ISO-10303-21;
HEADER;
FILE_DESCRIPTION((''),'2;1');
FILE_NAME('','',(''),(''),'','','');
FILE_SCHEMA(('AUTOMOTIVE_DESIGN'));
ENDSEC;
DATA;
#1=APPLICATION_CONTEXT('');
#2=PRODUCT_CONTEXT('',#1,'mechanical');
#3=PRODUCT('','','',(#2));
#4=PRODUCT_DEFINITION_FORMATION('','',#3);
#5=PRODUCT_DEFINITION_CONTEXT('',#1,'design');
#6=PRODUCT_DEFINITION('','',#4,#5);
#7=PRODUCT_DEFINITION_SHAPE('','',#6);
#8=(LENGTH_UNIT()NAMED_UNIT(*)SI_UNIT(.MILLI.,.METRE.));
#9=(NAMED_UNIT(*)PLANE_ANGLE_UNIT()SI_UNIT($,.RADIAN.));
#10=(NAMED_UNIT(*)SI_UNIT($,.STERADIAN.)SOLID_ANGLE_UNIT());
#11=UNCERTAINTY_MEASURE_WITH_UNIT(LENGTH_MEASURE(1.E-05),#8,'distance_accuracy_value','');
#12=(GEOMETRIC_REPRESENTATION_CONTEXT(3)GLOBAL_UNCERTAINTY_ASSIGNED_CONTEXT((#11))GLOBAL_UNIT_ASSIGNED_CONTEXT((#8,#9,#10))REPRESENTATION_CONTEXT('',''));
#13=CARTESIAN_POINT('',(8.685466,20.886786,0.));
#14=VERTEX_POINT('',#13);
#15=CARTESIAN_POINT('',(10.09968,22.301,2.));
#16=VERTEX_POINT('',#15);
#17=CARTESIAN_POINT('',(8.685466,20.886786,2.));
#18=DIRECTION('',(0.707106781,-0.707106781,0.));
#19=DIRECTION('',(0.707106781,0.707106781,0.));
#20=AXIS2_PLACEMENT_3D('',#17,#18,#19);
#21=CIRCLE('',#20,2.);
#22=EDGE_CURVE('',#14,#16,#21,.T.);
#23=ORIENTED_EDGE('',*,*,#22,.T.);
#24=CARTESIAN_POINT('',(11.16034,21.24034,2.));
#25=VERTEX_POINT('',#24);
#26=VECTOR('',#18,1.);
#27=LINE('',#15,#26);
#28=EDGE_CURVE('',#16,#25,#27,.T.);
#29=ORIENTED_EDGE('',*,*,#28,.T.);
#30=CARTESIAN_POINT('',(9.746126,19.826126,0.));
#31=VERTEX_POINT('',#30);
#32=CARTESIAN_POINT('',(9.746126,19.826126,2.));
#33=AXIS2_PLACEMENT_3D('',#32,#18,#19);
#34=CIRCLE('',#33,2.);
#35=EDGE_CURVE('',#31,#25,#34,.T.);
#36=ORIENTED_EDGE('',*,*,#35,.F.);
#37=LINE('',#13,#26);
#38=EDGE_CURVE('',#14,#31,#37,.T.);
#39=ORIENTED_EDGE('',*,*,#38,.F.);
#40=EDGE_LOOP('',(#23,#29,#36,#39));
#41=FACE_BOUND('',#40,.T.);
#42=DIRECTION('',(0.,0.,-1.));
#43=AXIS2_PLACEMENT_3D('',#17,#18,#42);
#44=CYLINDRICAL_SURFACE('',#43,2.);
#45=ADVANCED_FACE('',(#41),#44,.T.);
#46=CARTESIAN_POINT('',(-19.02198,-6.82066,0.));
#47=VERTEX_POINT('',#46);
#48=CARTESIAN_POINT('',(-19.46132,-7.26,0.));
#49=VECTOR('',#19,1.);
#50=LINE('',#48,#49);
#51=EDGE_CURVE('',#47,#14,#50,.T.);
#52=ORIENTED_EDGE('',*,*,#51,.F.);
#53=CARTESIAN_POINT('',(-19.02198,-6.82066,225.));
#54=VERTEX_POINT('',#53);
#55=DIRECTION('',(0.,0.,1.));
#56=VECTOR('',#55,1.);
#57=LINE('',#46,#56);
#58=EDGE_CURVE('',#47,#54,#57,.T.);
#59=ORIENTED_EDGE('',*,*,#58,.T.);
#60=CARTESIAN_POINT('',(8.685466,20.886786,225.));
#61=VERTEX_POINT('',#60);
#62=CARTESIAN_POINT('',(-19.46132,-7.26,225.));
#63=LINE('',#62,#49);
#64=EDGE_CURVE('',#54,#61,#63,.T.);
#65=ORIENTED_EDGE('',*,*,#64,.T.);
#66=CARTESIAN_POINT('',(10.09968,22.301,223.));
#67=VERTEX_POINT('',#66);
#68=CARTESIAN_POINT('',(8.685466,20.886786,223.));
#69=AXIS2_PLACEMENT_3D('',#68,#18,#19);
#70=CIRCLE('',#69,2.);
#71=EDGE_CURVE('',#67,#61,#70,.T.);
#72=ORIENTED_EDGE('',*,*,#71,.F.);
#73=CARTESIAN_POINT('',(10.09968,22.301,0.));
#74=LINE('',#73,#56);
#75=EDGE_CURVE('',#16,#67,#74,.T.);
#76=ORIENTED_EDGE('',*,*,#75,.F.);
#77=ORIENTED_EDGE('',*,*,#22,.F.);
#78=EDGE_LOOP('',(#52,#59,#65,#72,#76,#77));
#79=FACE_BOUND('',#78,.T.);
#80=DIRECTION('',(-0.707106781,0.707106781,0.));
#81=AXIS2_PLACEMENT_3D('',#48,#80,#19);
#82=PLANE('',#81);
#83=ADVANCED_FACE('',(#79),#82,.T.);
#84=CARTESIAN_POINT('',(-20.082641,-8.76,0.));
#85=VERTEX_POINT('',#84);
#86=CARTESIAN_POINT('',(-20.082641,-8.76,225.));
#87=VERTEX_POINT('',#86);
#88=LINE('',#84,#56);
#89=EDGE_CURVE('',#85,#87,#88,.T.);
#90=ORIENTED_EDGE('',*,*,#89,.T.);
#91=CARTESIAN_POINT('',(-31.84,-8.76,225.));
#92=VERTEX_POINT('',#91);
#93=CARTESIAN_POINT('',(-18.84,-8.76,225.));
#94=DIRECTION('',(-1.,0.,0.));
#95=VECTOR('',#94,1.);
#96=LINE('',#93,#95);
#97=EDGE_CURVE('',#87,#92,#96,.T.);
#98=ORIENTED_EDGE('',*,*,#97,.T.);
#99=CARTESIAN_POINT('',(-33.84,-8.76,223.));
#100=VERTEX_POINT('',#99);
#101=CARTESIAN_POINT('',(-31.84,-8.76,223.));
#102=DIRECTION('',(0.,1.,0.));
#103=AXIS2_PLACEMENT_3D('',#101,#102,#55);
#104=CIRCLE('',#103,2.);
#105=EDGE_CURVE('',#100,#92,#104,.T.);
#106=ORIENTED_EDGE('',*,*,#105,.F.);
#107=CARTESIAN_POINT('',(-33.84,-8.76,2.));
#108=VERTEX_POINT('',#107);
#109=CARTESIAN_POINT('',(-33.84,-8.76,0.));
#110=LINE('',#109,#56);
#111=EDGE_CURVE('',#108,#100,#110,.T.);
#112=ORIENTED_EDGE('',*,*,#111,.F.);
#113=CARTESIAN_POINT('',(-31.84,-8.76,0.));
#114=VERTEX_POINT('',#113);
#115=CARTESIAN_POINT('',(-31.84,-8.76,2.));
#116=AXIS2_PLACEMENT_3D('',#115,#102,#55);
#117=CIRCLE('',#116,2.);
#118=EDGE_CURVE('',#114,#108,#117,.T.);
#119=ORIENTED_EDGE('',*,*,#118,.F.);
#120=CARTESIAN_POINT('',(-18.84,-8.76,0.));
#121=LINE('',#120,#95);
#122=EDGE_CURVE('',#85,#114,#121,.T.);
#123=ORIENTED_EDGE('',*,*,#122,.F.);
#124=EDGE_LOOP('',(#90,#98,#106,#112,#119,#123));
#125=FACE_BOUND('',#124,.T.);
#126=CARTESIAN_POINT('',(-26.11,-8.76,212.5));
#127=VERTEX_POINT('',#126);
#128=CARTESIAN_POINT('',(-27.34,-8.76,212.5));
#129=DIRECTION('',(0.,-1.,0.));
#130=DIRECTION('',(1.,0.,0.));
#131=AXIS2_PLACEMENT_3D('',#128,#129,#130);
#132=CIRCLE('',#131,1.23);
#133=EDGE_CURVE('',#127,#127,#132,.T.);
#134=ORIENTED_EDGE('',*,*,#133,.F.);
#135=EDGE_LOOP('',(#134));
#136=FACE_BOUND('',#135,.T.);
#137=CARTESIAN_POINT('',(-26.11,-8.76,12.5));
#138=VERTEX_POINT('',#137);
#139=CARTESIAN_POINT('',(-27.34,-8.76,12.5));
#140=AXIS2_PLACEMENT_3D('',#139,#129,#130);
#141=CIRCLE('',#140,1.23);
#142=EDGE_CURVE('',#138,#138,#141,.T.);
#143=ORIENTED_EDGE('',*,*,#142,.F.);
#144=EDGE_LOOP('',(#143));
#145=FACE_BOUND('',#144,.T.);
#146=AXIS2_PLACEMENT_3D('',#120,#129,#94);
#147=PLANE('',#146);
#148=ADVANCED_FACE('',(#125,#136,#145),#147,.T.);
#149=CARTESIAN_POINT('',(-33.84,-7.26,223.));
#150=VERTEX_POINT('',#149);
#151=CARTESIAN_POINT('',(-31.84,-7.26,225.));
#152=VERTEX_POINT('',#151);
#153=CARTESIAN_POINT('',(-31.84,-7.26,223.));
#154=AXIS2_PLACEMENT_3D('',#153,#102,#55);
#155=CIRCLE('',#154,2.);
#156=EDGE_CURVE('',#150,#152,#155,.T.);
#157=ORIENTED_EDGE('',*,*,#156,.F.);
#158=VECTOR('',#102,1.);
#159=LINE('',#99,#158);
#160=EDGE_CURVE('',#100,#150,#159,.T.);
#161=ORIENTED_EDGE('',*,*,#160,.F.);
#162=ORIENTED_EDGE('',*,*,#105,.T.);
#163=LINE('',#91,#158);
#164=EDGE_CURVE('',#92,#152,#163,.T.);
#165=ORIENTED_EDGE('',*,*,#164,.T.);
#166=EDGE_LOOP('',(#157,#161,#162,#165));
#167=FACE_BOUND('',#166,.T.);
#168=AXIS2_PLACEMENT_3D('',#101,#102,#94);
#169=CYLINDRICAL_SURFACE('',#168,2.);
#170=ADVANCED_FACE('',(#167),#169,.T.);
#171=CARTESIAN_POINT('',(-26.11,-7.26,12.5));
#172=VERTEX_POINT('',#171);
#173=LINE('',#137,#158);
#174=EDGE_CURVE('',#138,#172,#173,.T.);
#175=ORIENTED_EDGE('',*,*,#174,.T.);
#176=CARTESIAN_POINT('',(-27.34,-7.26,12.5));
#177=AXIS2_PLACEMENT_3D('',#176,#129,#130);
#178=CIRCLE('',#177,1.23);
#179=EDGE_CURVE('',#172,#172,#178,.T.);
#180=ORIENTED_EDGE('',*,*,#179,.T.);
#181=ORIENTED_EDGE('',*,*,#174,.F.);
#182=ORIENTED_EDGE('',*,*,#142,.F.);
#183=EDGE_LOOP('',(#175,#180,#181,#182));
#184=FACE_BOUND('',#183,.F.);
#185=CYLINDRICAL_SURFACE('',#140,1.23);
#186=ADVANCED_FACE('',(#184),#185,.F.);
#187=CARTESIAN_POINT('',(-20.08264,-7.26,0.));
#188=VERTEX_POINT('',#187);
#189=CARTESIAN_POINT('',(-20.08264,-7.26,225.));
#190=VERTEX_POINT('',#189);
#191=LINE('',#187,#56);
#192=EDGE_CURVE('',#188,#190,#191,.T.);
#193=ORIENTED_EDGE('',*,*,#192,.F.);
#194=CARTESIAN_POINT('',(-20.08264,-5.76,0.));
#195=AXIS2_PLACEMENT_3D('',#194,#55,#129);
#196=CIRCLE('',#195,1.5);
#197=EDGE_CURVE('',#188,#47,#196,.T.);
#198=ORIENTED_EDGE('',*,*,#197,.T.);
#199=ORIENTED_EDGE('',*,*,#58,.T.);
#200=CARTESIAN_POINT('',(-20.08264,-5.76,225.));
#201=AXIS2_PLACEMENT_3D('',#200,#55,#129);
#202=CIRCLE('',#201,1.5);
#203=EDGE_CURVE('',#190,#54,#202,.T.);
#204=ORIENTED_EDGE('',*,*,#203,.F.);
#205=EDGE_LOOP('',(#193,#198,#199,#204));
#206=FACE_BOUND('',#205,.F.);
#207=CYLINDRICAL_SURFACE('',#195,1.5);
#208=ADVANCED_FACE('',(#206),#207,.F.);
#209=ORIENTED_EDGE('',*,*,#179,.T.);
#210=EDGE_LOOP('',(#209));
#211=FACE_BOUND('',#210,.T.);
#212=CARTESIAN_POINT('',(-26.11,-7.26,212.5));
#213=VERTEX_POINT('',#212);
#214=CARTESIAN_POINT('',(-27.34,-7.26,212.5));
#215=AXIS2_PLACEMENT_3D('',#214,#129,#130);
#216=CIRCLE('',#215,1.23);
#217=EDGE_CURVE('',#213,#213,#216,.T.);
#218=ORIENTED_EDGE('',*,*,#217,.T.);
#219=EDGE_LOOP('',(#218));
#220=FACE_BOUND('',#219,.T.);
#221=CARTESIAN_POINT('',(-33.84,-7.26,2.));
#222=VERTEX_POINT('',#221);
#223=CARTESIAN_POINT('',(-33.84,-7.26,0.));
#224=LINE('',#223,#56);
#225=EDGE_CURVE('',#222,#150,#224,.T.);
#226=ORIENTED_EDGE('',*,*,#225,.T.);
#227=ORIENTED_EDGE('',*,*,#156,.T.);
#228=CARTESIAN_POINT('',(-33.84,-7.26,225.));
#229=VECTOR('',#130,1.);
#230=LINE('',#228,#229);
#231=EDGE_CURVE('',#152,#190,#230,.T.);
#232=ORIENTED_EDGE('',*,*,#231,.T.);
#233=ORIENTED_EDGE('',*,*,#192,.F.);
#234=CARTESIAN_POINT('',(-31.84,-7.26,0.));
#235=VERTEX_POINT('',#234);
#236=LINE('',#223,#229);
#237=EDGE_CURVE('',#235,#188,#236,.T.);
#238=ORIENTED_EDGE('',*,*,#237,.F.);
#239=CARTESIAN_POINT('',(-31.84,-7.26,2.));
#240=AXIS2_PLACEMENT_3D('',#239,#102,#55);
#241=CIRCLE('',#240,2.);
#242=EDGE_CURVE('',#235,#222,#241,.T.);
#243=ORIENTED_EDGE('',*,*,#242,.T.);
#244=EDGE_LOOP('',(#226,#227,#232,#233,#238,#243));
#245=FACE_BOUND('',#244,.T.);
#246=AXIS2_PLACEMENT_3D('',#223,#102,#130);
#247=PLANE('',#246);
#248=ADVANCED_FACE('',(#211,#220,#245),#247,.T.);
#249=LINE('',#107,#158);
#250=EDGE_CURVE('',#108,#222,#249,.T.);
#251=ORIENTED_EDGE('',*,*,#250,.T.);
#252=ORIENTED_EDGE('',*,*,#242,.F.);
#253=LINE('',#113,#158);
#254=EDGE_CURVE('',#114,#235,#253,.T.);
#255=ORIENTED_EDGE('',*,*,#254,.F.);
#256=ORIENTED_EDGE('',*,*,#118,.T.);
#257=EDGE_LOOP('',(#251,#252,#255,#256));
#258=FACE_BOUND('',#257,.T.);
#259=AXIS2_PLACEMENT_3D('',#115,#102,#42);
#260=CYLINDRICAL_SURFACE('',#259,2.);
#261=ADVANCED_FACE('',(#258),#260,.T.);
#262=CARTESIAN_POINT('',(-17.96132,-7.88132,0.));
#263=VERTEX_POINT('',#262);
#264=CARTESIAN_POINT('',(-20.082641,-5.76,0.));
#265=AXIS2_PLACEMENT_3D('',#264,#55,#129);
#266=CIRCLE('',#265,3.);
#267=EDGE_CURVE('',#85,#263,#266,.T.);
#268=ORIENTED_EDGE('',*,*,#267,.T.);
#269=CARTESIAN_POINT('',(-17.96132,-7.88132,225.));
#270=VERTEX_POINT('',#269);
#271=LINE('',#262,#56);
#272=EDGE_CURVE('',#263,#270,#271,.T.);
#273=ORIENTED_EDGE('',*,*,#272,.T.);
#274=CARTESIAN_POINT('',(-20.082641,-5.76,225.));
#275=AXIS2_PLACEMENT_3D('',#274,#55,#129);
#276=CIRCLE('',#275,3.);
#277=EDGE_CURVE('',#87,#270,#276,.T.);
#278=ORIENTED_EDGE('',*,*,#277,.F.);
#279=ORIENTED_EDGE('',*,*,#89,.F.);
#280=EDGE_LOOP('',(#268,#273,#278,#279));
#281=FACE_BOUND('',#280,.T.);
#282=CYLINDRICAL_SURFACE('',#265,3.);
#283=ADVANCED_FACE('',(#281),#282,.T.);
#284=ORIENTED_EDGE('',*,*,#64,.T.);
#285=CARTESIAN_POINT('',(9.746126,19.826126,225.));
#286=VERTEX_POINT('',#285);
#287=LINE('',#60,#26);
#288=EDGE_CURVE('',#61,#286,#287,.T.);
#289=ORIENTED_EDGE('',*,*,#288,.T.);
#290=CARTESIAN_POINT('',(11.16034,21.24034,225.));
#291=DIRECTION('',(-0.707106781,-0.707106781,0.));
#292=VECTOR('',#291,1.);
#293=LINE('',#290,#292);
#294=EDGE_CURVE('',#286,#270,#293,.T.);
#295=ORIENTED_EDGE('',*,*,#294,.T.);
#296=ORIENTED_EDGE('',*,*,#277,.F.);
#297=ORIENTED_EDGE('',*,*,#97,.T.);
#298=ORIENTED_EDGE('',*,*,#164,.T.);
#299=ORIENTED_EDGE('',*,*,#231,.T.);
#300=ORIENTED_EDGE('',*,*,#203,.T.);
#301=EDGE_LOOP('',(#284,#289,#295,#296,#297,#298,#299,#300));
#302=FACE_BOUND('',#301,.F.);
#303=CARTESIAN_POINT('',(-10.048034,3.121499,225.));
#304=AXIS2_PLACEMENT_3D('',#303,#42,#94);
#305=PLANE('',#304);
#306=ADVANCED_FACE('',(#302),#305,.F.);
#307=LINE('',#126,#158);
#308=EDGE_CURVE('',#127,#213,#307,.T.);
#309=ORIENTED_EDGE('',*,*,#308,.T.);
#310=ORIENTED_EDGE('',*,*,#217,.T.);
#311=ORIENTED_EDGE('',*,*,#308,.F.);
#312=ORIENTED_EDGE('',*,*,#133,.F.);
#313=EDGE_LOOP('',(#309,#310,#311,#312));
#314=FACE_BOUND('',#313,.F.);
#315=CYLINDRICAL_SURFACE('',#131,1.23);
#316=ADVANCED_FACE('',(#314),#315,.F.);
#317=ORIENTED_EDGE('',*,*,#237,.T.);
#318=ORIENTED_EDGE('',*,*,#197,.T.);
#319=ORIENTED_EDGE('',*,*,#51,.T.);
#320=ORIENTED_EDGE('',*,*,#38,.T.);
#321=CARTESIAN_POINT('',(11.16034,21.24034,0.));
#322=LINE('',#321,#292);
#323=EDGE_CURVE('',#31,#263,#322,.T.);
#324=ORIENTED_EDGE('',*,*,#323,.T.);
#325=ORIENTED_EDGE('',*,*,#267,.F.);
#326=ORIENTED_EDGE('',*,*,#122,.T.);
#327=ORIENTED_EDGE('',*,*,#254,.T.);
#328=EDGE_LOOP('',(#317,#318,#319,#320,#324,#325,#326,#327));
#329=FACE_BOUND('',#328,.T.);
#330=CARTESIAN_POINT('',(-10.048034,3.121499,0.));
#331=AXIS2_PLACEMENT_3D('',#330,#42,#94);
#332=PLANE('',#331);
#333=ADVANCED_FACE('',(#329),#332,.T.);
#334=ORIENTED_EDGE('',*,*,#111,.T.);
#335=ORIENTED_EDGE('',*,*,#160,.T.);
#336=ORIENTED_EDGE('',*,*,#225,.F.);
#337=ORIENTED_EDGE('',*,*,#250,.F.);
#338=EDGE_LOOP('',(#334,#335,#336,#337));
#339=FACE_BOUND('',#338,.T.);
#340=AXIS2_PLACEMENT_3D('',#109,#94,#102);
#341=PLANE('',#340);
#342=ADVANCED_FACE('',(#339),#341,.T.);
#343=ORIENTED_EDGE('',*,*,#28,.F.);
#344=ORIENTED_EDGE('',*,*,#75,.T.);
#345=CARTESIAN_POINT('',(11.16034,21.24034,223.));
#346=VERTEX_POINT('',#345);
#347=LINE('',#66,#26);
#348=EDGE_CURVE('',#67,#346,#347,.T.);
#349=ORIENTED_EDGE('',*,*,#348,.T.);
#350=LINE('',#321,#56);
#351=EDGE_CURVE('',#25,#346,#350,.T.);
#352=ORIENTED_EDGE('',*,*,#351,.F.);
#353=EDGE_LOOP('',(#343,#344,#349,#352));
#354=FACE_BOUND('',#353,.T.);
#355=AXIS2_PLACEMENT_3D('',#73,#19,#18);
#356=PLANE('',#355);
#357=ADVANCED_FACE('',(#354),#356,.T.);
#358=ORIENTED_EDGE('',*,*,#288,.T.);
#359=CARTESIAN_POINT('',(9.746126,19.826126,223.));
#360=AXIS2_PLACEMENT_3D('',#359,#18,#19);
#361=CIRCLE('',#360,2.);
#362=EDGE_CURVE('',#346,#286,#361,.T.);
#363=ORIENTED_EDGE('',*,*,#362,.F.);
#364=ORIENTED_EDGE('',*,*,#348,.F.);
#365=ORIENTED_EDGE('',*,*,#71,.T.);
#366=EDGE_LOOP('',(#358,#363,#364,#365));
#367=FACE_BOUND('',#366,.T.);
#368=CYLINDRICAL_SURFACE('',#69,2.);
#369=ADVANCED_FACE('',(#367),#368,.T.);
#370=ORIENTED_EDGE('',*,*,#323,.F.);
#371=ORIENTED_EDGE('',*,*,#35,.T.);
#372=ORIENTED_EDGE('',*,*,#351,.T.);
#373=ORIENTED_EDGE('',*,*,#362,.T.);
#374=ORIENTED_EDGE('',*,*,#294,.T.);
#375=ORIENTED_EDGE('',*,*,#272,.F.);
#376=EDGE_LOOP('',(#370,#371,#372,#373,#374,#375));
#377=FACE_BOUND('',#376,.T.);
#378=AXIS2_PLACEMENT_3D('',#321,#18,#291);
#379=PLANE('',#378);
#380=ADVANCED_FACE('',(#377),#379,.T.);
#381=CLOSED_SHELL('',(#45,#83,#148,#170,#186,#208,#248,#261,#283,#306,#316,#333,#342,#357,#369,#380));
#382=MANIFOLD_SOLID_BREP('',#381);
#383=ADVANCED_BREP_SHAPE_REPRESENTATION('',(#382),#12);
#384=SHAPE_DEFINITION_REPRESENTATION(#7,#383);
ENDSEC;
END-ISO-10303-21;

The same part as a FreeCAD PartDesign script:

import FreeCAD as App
import Part
import Sketcher

V = App.Vector
Q = App.Units.Quantity


def edges_at(feature, points):
    """Names of the edges that pass closest to the given points."""
    edges = feature.Shape.Edges
    near = lambda p: min(range(len(edges)), key=lambda i: edges[i].distToShape(Part.Vertex(*p))[0])
    return sorted({f"Edge{near(p) + 1}" for p in points})

doc = App.newDocument("Part")
body = doc.addObject("PartDesign::Body", "Body")

sketch1 = body.newObject("Sketcher::SketchObject", "Sketch")
sketch1.AttachmentSupport = (doc.getObject("XY_Plane"), [""])
sketch1.MapMode = "FlatFace"
sketch1.addGeometry([
    Part.LineSegment(V(-19.5, -7.3, 0), V(-33.8, -7.3, 0)),
    Part.LineSegment(V(-33.8, -7.3, 0), V(-33.8, -8.8, 0)),
    Part.LineSegment(V(-33.8, -8.8, 0), V(-18.8, -8.8, 0)),
    Part.LineSegment(V(-18.8, -8.8, 0), V(11.2, 21.2, 0)),
    Part.LineSegment(V(11.2, 21.2, 0), V(10.1, 22.3, 0)),
    Part.LineSegment(V(10.1, 22.3, 0), V(-19.5, -7.3, 0)),
], False)
sketch1.addConstraint([
    Sketcher.Constraint("Coincident", 0, 2, 1, 1),
    Sketcher.Constraint("Coincident", 1, 2, 2, 1),
    Sketcher.Constraint("Coincident", 2, 2, 3, 1),
    Sketcher.Constraint("Coincident", 3, 2, 4, 1),
    Sketcher.Constraint("Coincident", 4, 2, 5, 1),
    Sketcher.Constraint("Coincident", 5, 2, 0, 1),
    Sketcher.Constraint("Horizontal", 0),
    Sketcher.Constraint("Vertical", 1),
    Sketcher.Constraint("Horizontal", 2),
    Sketcher.Constraint("Perpendicular", 3, 4),
    Sketcher.Constraint("Perpendicular", 4, 5),
    Sketcher.Constraint("DistanceX", 2, 1, 2, 2, 15.0),
    Sketcher.Constraint("Angle", 3, Q("45 deg")),
    Sketcher.Constraint("DistanceY", 1, 2, 1, 1, 1.5),
    Sketcher.Constraint("Distance", 4, 1.5),
    Sketcher.Constraint("DistanceX", 0, 2, -1, 1, 33.84),
    Sketcher.Constraint("DistanceY", 0, 2, -1, 1, 7.26),
    Sketcher.Constraint("DistanceY", -1, 1, 4, 2, 22.301),
])
pad1 = body.newObject("PartDesign::Pad", "Pad")
pad1.Profile = sketch1
pad1.Length = 225
doc.recompute()

fillet = body.newObject("PartDesign::Fillet", "Fillet")
fillet.Base = (pad1, edges_at(pad1, [(-19.461, -7.26, 112.5)]))
fillet.Radius = 1.5
doc.recompute()

fillet2 = body.newObject("PartDesign::Fillet", "Fillet001")
fillet2.Base = (fillet, edges_at(fillet, [(-18.84, -8.76, 112.5)]))
fillet2.Radius = 3
doc.recompute()

fillet3 = body.newObject("PartDesign::Fillet", "Fillet002")
fillet3.Base = (fillet2, edges_at(fillet2, [
    (10.63, 21.771, 225),
    (-33.84, -8.01, 225),
    (-33.84, -8.01, 0),
    (10.63, 21.771, 0),
]))
fillet3.Radius = 2

sketch2 = body.newObject("Sketcher::SketchObject", "Sketch001")
sketch2.AttachmentSupport = (doc.getObject("XZ_Plane"), [""])
sketch2.MapMode = "FlatFace"
sketch2.AttachmentOffset = App.Placement(V(0, 0, 8.76), App.Rotation())
sketch2.addGeometry([
    Part.Circle(V(-27.3, 12.5, 0), V(0, 0, 1), 1.2),
    Part.Circle(V(-27.3, 212.5, 0), V(0, 0, 1), 1.2),
], False)
sketch2.addConstraint([
    Sketcher.Constraint("Equal", 0, 1),
    Sketcher.Constraint("Vertical", 0, 3, 1, 3),
    Sketcher.Constraint("Diameter", 0, 2.46),
    Sketcher.Constraint("DistanceY", 0, 3, 1, 3, 200.0),
    Sketcher.Constraint("DistanceY", -1, 1, 0, 3, 12.5),
    Sketcher.Constraint("DistanceX", 0, 3, -1, 1, 27.34),
])
pocket1 = body.newObject("PartDesign::Pocket", "Pocket")
pocket1.Profile = sketch2
pocket1.Length = 5

doc.recompute()
